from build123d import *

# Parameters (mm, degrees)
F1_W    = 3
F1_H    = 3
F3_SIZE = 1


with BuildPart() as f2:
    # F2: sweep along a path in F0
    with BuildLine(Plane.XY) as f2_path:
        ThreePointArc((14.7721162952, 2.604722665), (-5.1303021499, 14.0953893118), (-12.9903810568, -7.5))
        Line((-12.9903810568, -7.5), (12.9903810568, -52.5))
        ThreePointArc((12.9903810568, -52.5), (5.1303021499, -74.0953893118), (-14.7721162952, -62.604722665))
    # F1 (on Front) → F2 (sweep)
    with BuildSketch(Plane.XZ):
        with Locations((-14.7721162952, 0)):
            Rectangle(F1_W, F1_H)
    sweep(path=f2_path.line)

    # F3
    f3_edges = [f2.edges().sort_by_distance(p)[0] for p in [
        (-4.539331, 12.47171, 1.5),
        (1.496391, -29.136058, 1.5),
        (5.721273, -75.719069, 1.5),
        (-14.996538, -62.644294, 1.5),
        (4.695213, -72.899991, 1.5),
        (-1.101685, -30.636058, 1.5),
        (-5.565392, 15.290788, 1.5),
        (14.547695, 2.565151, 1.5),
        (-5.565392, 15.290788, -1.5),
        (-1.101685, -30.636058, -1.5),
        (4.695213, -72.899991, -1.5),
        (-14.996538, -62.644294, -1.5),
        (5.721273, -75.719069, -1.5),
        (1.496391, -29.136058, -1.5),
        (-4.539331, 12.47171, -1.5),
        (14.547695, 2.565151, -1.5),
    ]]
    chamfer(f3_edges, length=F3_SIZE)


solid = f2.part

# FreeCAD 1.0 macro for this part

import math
import FreeCAD as App
import Part
import Sketcher
from FreeCAD import Vector
Q = App.Units.Quantity


def edges_at(feature, points):
    """Names of the edges that pass closest to the given points."""
    edges = feature.Shape.Edges
    near = lambda p: min(range(len(edges)), key=lambda i: edges[i].distToShape(Part.Vertex(*p))[0])
    return sorted({f"Edge{near(p) + 1}" for p in points})

doc = App.newDocument("Part")
body = doc.addObject("PartDesign::Body", "Body")

# Sketch on XZ plane
sketch1 = body.newObject("Sketcher::SketchObject", "Sketch")
sketch1.AttachmentSupport = (doc.getObject("XZ_Plane"), [""])
sketch1.MapMode = "FlatFace"
sketch1.addGeometry([
    Part.LineSegment(Vector(-16.3, 1.5, 0), Vector(-16.3, -1.5, 0)),
    Part.LineSegment(Vector(-16.3, -1.5, 0), Vector(-13.3, -1.5, 0)),
    Part.LineSegment(Vector(-13.3, -1.5, 0), Vector(-13.3, 1.5, 0)),
    Part.LineSegment(Vector(-13.3, 1.5, 0), Vector(-16.3, 1.5, 0)),
], False)
sketch1.addConstraint([
    Sketcher.Constraint("Coincident", 0, 2, 1, 1),
    Sketcher.Constraint("Coincident", 1, 2, 2, 1),
    Sketcher.Constraint("Coincident", 2, 2, 3, 1),
    Sketcher.Constraint("Coincident", 3, 2, 0, 1),
    Sketcher.Constraint("Vertical", 0),
    Sketcher.Constraint("Horizontal", 1),
    Sketcher.Constraint("Vertical", 2),
    Sketcher.Constraint("Horizontal", 3),
    Sketcher.Constraint("Equal", 3, 0),
    Sketcher.Constraint("DistanceX", 1, 1, 1, 2, 3.0),
    Sketcher.Constraint("DistanceY", 0, 2, -1, 1, 1.5),
    Sketcher.Constraint("DistanceX", 0, 2, -1, 1, 16.272116),
])

# Sketch on XY plane
sketch2 = body.newObject("Sketcher::SketchObject", "Sketch001")
sketch2.AttachmentSupport = (doc.getObject("XY_Plane"), [""])
sketch2.MapMode = "FlatFace"
sketch2.addGeometry([
    Part.ArcOfCircle(Part.Circle(Vector(0, 0, 0), Vector(0, 0, 1), 15), math.radians(10), math.radians(210)),
    Part.LineSegment(Vector(-13, -8, 0), Vector(13, -52, 0)),
    Part.ArcOfCircle(Part.Circle(Vector(0, -60, 0), Vector(0, 0, 1), 15), math.radians(-170), math.radians(30)),
], False)
sketch2.addConstraint([
    Sketcher.Constraint("Tangent", 0, 2, 1, 1),
    Sketcher.Constraint("Tangent", 1, 2, 2, 2),
    Sketcher.Constraint("Coincident", 0, 3, -1, 1),
    Sketcher.Constraint("Equal", 0, 2),
    Sketcher.Constraint("PointOnObject", 2, 3, -2),
    Sketcher.Constraint("Radius", 0, 15.0),
    Sketcher.Constraint("Angle", 1, Q("-60 deg")),
    Sketcher.Constraint("DistanceX", -1, 1, 0, 1, 14.772116),
    Sketcher.Constraint("DistanceX", 2, 1, -1, 1, 14.772116),
])
doc.recompute()

additivepipe = body.newObject("PartDesign::AdditivePipe", "AdditivePipe")
additivepipe.Profile = sketch1
additivepipe.Spine = (sketch2, ["Edge1", "Edge2", "Edge3"])
doc.recompute()

chamfer = body.newObject("PartDesign::Chamfer", "Chamfer")
chamfer.Base = (additivepipe, edges_at(additivepipe, [
    (-4.539, 12.472, 1.5),
    (1.496, -29.136, 1.5),
    (5.721, -75.719, 1.5),
    (-14.997, -62.644, 1.5),
    (4.695, -72.9, 1.5),
    (-1.102, -30.636, 1.5),
    (-5.565, 15.291, 1.5),
    (14.548, 2.565, 1.5),
    (-5.565, 15.291, -1.5),
    (-1.102, -30.636, -1.5),
    (4.695, -72.9, -1.5),
    (-14.997, -62.644, -1.5),
    (5.721, -75.719, -1.5),
    (1.496, -29.136, -1.5),
    (-4.539, 12.472, -1.5),
    (14.548, 2.565, -1.5),
]))
chamfer.Size = 1

doc.recompute()
